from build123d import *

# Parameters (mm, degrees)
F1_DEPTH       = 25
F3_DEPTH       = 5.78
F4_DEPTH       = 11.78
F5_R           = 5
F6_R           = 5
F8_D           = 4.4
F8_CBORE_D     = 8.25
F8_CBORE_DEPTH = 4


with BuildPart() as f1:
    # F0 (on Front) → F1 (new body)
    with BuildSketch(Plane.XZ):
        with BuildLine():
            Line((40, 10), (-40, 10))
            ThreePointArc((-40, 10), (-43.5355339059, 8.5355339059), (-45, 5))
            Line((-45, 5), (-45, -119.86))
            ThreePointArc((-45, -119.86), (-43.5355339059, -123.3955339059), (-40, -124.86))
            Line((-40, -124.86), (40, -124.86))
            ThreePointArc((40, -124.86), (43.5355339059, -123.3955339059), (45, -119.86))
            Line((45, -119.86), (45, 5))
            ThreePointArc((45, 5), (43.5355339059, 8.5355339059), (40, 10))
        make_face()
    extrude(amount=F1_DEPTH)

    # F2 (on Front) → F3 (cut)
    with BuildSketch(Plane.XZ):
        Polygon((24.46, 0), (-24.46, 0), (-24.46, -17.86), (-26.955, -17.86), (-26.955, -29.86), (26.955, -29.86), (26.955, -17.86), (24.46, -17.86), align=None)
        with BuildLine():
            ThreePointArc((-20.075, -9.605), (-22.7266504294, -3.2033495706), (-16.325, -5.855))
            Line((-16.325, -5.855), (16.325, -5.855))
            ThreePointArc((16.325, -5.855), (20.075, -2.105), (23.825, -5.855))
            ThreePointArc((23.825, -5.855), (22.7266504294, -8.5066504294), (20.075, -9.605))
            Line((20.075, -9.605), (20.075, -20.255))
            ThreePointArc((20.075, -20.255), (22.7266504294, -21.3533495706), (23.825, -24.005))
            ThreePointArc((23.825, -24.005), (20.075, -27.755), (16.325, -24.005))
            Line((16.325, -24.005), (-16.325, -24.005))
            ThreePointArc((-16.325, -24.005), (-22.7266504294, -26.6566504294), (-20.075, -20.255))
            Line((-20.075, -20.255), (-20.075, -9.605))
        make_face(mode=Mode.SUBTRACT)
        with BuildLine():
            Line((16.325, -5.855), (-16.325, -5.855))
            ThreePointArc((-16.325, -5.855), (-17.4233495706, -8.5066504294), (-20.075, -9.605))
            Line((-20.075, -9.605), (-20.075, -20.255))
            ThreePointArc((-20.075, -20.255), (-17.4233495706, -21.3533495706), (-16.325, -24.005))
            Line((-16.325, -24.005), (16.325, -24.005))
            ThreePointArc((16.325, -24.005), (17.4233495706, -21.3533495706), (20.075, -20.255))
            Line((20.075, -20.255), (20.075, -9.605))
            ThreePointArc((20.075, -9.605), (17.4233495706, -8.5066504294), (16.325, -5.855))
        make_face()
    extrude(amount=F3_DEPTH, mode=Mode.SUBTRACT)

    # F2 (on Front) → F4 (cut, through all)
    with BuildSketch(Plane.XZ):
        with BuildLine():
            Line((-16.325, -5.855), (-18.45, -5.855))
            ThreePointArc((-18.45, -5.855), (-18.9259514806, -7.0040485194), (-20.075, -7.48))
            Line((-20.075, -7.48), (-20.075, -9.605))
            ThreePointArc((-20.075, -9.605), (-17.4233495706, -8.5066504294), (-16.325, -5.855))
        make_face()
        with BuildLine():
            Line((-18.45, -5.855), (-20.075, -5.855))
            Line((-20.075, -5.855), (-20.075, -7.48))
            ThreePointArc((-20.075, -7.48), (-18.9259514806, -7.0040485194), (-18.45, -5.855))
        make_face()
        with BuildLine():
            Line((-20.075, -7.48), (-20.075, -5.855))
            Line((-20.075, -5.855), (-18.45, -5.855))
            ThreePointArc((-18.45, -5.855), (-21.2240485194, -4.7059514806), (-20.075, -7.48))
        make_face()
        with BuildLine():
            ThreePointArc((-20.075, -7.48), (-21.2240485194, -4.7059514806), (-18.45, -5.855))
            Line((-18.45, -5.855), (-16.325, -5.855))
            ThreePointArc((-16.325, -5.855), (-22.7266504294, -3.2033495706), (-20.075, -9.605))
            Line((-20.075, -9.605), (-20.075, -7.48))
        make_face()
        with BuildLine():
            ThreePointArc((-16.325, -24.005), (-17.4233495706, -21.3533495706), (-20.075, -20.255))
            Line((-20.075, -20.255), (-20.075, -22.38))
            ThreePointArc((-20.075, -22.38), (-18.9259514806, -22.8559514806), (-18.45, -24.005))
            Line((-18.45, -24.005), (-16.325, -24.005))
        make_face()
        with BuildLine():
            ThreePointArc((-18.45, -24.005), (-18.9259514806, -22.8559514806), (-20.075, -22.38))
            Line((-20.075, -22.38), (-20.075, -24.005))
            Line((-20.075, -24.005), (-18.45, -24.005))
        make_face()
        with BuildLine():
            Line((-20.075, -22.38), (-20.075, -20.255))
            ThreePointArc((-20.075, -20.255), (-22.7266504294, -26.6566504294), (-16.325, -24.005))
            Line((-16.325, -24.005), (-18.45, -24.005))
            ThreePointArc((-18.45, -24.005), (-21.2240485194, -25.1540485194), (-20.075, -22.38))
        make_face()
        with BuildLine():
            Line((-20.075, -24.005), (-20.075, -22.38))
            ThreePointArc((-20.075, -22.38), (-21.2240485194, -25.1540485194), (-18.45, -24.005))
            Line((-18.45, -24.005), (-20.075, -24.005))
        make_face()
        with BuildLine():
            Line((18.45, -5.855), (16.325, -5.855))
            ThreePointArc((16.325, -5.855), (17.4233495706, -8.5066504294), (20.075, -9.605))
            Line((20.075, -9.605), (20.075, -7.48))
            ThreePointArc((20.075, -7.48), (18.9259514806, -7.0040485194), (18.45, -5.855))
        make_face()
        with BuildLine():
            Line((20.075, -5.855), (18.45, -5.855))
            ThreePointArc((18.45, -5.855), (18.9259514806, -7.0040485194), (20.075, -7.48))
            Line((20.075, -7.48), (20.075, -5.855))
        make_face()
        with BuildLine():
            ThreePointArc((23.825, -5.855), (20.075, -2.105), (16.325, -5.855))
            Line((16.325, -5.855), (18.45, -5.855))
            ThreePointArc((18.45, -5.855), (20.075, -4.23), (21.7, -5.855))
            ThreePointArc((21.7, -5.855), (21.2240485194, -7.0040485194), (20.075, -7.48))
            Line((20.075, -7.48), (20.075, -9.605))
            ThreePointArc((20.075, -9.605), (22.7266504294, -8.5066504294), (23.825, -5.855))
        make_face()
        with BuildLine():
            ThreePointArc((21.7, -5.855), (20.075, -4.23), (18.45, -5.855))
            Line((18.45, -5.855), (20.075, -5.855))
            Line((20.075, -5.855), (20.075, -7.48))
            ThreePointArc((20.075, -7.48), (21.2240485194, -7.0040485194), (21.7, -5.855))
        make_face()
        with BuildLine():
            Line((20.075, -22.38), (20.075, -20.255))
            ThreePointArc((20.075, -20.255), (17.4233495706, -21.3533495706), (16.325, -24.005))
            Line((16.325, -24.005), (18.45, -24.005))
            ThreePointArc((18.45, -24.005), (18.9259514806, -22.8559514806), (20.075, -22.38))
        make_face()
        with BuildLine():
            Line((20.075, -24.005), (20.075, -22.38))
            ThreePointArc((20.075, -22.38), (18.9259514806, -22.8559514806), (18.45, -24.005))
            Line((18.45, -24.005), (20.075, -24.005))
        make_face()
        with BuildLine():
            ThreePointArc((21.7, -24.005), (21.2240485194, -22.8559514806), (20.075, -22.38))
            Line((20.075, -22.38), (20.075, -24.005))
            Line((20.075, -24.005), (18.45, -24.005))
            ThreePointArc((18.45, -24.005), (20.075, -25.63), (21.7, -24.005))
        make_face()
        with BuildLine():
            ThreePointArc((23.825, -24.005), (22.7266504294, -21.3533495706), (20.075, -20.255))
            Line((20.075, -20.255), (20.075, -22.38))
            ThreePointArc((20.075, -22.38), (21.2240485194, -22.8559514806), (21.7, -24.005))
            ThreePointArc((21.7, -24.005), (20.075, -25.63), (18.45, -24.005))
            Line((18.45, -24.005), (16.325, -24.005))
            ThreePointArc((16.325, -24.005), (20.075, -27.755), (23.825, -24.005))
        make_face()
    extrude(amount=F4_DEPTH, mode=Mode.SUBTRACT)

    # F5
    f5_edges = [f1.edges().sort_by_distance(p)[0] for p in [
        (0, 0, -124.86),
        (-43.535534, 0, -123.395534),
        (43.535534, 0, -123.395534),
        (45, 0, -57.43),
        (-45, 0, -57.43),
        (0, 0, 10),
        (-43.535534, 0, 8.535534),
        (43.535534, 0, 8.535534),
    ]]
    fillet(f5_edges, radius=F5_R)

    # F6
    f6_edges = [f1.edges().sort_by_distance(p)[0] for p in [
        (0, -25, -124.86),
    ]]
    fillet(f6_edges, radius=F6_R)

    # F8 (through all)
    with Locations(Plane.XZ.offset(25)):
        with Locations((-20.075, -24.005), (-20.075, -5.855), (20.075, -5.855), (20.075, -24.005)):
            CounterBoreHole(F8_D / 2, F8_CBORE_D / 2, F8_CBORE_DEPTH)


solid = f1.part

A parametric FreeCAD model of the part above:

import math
import FreeCAD as App
import Part
import Sketcher

V = App.Vector


def edges_at(feature, points):
    """Names of the edges that pass closest to the given points."""
    edges = feature.Shape.Edges
    near = lambda p: min(range(len(edges)), key=lambda i: edges[i].distToShape(Part.Vertex(*p))[0])
    return sorted({f"Edge{near(p) + 1}" for p in points})


def add_polygon(sketch, points):
    """Adds a closed chain of lines whose ends are joined by coincident constraints."""
    first, n = sketch.GeometryCount, len(points)
    for a, b in zip(points, points[1:] + points[:1]):
        sketch.addGeometry(Part.LineSegment(App.Vector(*a, 0), App.Vector(*b, 0)), False)
    for i in range(n):
        sketch.addConstraint(Sketcher.Constraint("Coincident", first + i, 2, first + (i + 1) % n, 1))

doc = App.newDocument("Part")
body = doc.addObject("PartDesign::Body", "Body")

# Sketch on XZ plane
sketch1 = body.newObject("Sketcher::SketchObject", "Sketch")
sketch1.AttachmentSupport = (doc.getObject("XZ_Plane"), [""])
sketch1.MapMode = "FlatFace"
sketch1.addGeometry([
    Part.LineSegment(V(40, 10, 0), V(-40, 10, 0)),  # 0
    Part.ArcOfCircle(Part.Circle(V(-40, 5, 0), V(0, 0, 1), 5), math.radians(90), math.radians(180)),  # 1
    Part.LineSegment(V(-45, 5, 0), V(-45, -119.86, 0)),  # 2
    Part.ArcOfCircle(Part.Circle(V(-40, -119.86, 0), V(0, 0, 1), 5), math.radians(180), math.radians(270)),  # 3
    Part.LineSegment(V(-40, -124.86, 0), V(40, -124.86, 0)),  # 4
    Part.ArcOfCircle(Part.Circle(V(40, -119.86, 0), V(0, 0, 1), 5), math.radians(-90), math.radians(0)),  # 5
    Part.LineSegment(V(45, -119.86, 0), V(45, 5, 0)),  # 6
    Part.ArcOfCircle(Part.Circle(V(40, 5, 0), V(0, 0, 1), 5), math.radians(0), math.radians(90)),  # 7
], False)
sketch1.addConstraint([
    Sketcher.Constraint("Tangent", 0, 2, 1, 1),
    Sketcher.Constraint("Tangent", 1, 2, 2, 1),
    Sketcher.Constraint("Tangent", 2, 2, 3, 1),
    Sketcher.Constraint("Tangent", 3, 2, 4, 1),
    Sketcher.Constraint("Tangent", 4, 2, 5, 1),
    Sketcher.Constraint("Tangent", 5, 2, 6, 1),
    Sketcher.Constraint("Tangent", 6, 2, 7, 1),
    Sketcher.Constraint("Tangent", 7, 2, 0, 1),
    Sketcher.Constraint("Horizontal", 0),
    Sketcher.Constraint("Vertical", 2),
    Sketcher.Constraint("Horizontal", 4),
    Sketcher.Constraint("Vertical", 6),
    Sketcher.Constraint("Equal", 1, 3),
    Sketcher.Constraint("Equal", 3, 5),
    Sketcher.Constraint("Equal", 5, 7),
    Sketcher.Constraint("Radius", 1, 5.0),
    Sketcher.Constraint("DistanceX", 0, 2, 0, 1, 80.0),
    Sketcher.Constraint("DistanceX", 1, 3, -1, 1, 40.0),
    Sketcher.Constraint("DistanceY", -1, 1, 1, 3, 5.0),
    Sketcher.Constraint("DistanceY", 2, 2, 2, 1, 124.86),
])
pad1 = body.newObject("PartDesign::Pad", "Pad")
pad1.Profile = sketch1
pad1.Length = 25

# Sketch on XZ plane
sketch2 = body.newObject("Sketcher::SketchObject", "Sketch001")
sketch2.AttachmentSupport = (doc.getObject("XZ_Plane"), [""])
sketch2.MapMode = "FlatFace"
add_polygon(sketch2, [(24.46, 0), (-24.46, 0), (-24.46, -17.86), (-26.955, -17.86), (-26.955, -29.86), (26.955, -29.86), (26.955, -17.86), (24.46, -17.86)])  # lines 0-7
sketch2.addGeometry(Part.ArcOfCircle(Part.Circle(V(-20.075, -24.005, 0), V(0, 0, 1), 3.75), math.radians(90), math.radians(360)), False)  # 8
sketch2.addGeometry(Part.ArcOfCircle(Part.Circle(V(-20.075, -24.005, 0), V(0, 0, 1), 3.75), math.radians(0), math.radians(90)), False)  # 9
sketch2.addGeometry(Part.ArcOfCircle(Part.Circle(V(20.075, -24.005, 0), V(0, 0, 1), 3.75), math.radians(180), math.radians(360)), False)  # 10
sketch2.addGeometry(Part.ArcOfCircle(Part.Circle(V(20.075, -24.005, 0), V(0, 0, 1), 3.75), math.radians(90), math.radians(180)), False)  # 11
sketch2.addGeometry(Part.ArcOfCircle(Part.Circle(V(20.075, -24.005, 0), V(0, 0, 1), 3.75), math.radians(0), math.radians(90)), False)  # 12
sketch2.addGeometry(Part.ArcOfCircle(Part.Circle(V(20.075, -5.855, 0), V(0, 0, 1), 3.75), math.radians(-90), math.radians(0)), False)  # 13
sketch2.addGeometry(Part.ArcOfCircle(Part.Circle(V(20.075, -5.855, 0), V(0, 0, 1), 3.75), math.radians(180), math.radians(270)), False)  # 14
sketch2.addGeometry(Part.ArcOfCircle(Part.Circle(V(20.075, -5.855, 0), V(0, 0, 1), 3.75), math.radians(0), math.radians(180)), False)  # 15
sketch2.addGeometry(Part.ArcOfCircle(Part.Circle(V(-20.075, -5.855, 0), V(0, 0, 1), 3.75), math.radians(0), math.radians(270)), False)  # 16
sketch2.addGeometry(Part.ArcOfCircle(Part.Circle(V(-20.075, -5.855, 0), V(0, 0, 1), 3.75), math.radians(-90), math.radians(0)), False)  # 17
sketch2.addConstraint([
    Sketcher.Constraint("Tangent", 8, 1, 9, 2),
    Sketcher.Constraint("Coincident", 9, 1, 8, 2),
    Sketcher.Constraint("Tangent", 10, 1, 11, 2),
    Sketcher.Constraint("Tangent", 11, 1, 12, 2),
    Sketcher.Constraint("Tangent", 12, 1, 10, 2),
    Sketcher.Constraint("Tangent", 13, 1, 14, 2),
    Sketcher.Constraint("Tangent", 14, 1, 15, 2),
    Sketcher.Constraint("Tangent", 15, 1, 13, 2),
    Sketcher.Constraint("Tangent", 16, 1, 17, 2),
    Sketcher.Constraint("Coincident", 17, 1, 16, 2),
    Sketcher.Constraint("Horizontal", 0),
    Sketcher.Constraint("Vertical", 1),
    Sketcher.Constraint("Horizontal", 2),
    Sketcher.Constraint("Vertical", 3),
    Sketcher.Constraint("Horizontal", 4),
    Sketcher.Constraint("Vertical", 5),
    Sketcher.Constraint("Horizontal", 6),
    Sketcher.Constraint("Vertical", 7),
    Sketcher.Constraint("Equal", 9, 10),
    Sketcher.Constraint("Equal", 12, 13),
    Sketcher.Constraint("Equal", 15, 16),
    Sketcher.Constraint("Symmetric", 0, 2, 7, 2, -1, 1),
    Sketcher.Constraint("Symmetric", 8, 3, 10, 3, -2),
    Sketcher.Constraint("Symmetric", 13, 3, 16, 3, -2),
    Sketcher.Constraint("Symmetric", 2, 2, 5, 2, -2),
    Sketcher.Constraint("Horizontal", 12, 3, 9, 1),
    Sketcher.Constraint("Horizontal", 9, 1, 10, 1),
    Sketcher.Constraint("Horizontal", 10, 1, 12, 1),
    Sketcher.Constraint("Horizontal", 17, 3, 14, 1),
    Sketcher.Constraint("Horizontal", 14, 1, 15, 1),
    Sketcher.Constraint("Horizontal", 15, 1, 16, 1),
    Sketcher.Constraint("Vertical", 12, 3, 13, 3),
    Sketcher.Constraint("Vertical", 17, 3, 8, 1),
    Sketcher.Constraint("Vertical", 15, 3, 11, 1),
    Sketcher.Constraint("Vertical", 11, 1, 13, 1),
    Sketcher.Constraint("Vertical", 8, 1, 17, 1),
    Sketcher.Constraint("DistanceY", 3, 2, 3, 1, 12.0),
    Sketcher.Constraint("Radius", 8, 3.75),
    Sketcher.Constraint("DistanceX", 0, 2, 0, 1, 48.92),
    Sketcher.Constraint("DistanceX", 4, 1, 4, 2, 53.91),
    Sketcher.Constraint("DistanceY", 1, 2, 1, 1, 17.86),
    Sketcher.Constraint("DistanceY", 8, 1, 16, 1, 14.4),
    Sketcher.Constraint("DistanceX", 8, 3, 10, 3, 40.15),
    Sketcher.Constraint("DistanceY", 8, 3, -1, 1, 24.005),
])
pocket1 = body.newObject("PartDesign::Pocket", "Pocket")
pocket1.Profile = sketch2
pocket1.Length = 5.78
pocket1.Reversed = True

# Sketch on XZ plane
sketch3 = body.newObject("Sketcher::SketchObject", "Sketch002")
sketch3.AttachmentSupport = (doc.getObject("XZ_Plane"), [""])
sketch3.MapMode = "FlatFace"
sketch3.addGeometry([
    Part.ArcOfCircle(Part.Circle(V(-20.075, -5.855, 0), V(0, 0, 1), 3.75), math.radians(-90), math.radians(0)),  # 0
    Part.ArcOfCircle(Part.Circle(V(-20.075, -5.855, 0), V(0, 0, 1), 3.75), math.radians(0), math.radians(270)),  # 1
    Part.ArcOfCircle(Part.Circle(V(-20.075, -24.005, 0), V(0, 0, 1), 3.75), math.radians(0), math.radians(90)),  # 2
    Part.ArcOfCircle(Part.Circle(V(-20.075, -24.005, 0), V(0, 0, 1), 3.75), math.radians(90), math.radians(360)),  # 3
    Part.ArcOfCircle(Part.Circle(V(20.075, -5.855, 0), V(0, 0, 1), 3.75), math.radians(180), math.radians(270)),  # 4
    Part.ArcOfCircle(Part.Circle(V(20.075, -5.855, 0), V(0, 0, 1), 3.75), math.radians(-90), math.radians(0)),  # 5
    Part.ArcOfCircle(Part.Circle(V(20.075, -5.855, 0), V(0, 0, 1), 3.75), math.radians(0), math.radians(180)),  # 6
    Part.ArcOfCircle(Part.Circle(V(20.075, -24.005, 0), V(0, 0, 1), 3.75), math.radians(90), math.radians(180)),  # 7
    Part.ArcOfCircle(Part.Circle(V(20.075, -24.005, 0), V(0, 0, 1), 3.75), math.radians(180), math.radians(360)),  # 8
    Part.ArcOfCircle(Part.Circle(V(20.075, -24.005, 0), V(0, 0, 1), 3.75), math.radians(0), math.radians(90)),  # 9
], False)
sketch3.addConstraint([
    Sketcher.Constraint("Tangent", 0, 1, 1, 2),
    Sketcher.Constraint("Coincident", 1, 1, 0, 2),
    Sketcher.Constraint("Tangent", 2, 1, 3, 2),
    Sketcher.Constraint("Coincident", 3, 1, 2, 2),
    Sketcher.Constraint("Tangent", 4, 2, 5, 1),
    Sketcher.Constraint("Tangent", 5, 2, 6, 1),
    Sketcher.Constraint("Tangent", 6, 2, 4, 1),
    Sketcher.Constraint("Tangent", 7, 2, 8, 1),
    Sketcher.Constraint("Tangent", 8, 2, 9, 1),
    Sketcher.Constraint("Tangent", 9, 2, 7, 1),
    Sketcher.Constraint("Equal", 1, 2),
    Sketcher.Constraint("Equal", 3, 4),
    Sketcher.Constraint("Equal", 6, 7),
    Sketcher.Constraint("Symmetric", 0, 3, 4, 3, -2),
    Sketcher.Constraint("Symmetric", 2, 3, 7, 3, -2),
    Sketcher.Constraint("Horizontal", 6, 3, 1, 1),
    Sketcher.Constraint("Horizontal", 9, 3, 2, 1),
    Sketcher.Constraint("Horizontal", 1, 1, 5, 2),
    Sketcher.Constraint("Horizontal", 5, 2, 6, 2),
    Sketcher.Constraint("Horizontal", 2, 1, 7, 2),
    Sketcher.Constraint("Horizontal", 7, 2, 8, 2),
    Sketcher.Constraint("Vertical", 1, 3, 2, 3),
    Sketcher.Constraint("Vertical", 3, 3, 0, 1),
    Sketcher.Constraint("Vertical", 0, 1, 3, 1),
    Sketcher.Constraint("Vertical", 9, 3, 4, 2),
    Sketcher.Constraint("Vertical", 4, 2, 9, 2),
    Sketcher.Constraint("Radius", 0, 3.75),
    Sketcher.Constraint("DistanceY", 2, 3, 0, 1, 14.4),
    Sketcher.Constraint("DistanceX", 0, 3, 4, 3, 40.15),
    Sketcher.Constraint("DistanceY", 0, 3, -1, 1, 5.855),
])
pocket2 = body.newObject("PartDesign::Pocket", "Pocket001")
pocket2.Profile = sketch3
pocket2.Length = 11.78
pocket2.Reversed = True
doc.recompute()

fillet = body.newObject("PartDesign::Fillet", "Fillet")
fillet.Base = (pocket2, edges_at(pocket2, [
    (0, 0, -124.86),
    (-43.536, 0, -123.396),
    (43.536, 0, -123.396),
    (45, 0, -57.43),
    (-45, 0, -57.43),
    (0, 0, 10),
    (-43.536, 0, 8.536),
    (43.536, 0, 8.536),
]))
fillet.Radius = 5
doc.recompute()

fillet2 = body.newObject("PartDesign::Fillet", "Fillet001")
fillet2.Base = (fillet, edges_at(fillet, [(0, -25, -124.86)]))
fillet2.Radius = 5

# Sketch on XZ plane
sketch4 = body.newObject("Sketcher::SketchObject", "Sketch003")
sketch4.AttachmentSupport = (doc.getObject("XZ_Plane"), [""])
sketch4.MapMode = "FlatFace"
sketch4.AttachmentOffset = App.Placement(V(0, 0, 25), App.Rotation())
sketch4.addGeometry([
    Part.Circle(V(-20.075, -24.005, 0), V(0, 0, 1), 2.2),
    Part.Circle(V(-20.075, -5.855, 0), V(0, 0, 1), 2.2),
    Part.Circle(V(20.075, -5.855, 0), V(0, 0, 1), 2.2),
    Part.Circle(V(20.075, -24.005, 0), V(0, 0, 1), 2.2),
], False)
sketch4.addConstraint([
    Sketcher.Constraint("Equal", 0, 1),
    Sketcher.Constraint("Equal", 1, 2),
    Sketcher.Constraint("Equal", 2, 3),
    Sketcher.Constraint("Symmetric", 1, 3, 2, 3, -2),
    Sketcher.Constraint("Symmetric", 0, 3, 3, 3, -2),
    Sketcher.Constraint("Vertical", 0, 3, 1, 3),
    Sketcher.Constraint("Diameter", 0, 4.4),
    Sketcher.Constraint("DistanceY", 0, 3, 1, 3, 18.15),
    Sketcher.Constraint("DistanceX", 1, 3, 2, 3, 40.15),
    Sketcher.Constraint("DistanceY", 0, 3, -1, 1, 24.005),
])
doc.recompute()
hole = body.newObject("PartDesign::Hole", "Hole")
hole.Profile = sketch4
hole.ThreadType = "None"
hole.Diameter = 4.4
hole.DepthType = "ThroughAll"
hole.HoleCutType = "Counterbore"
hole.HoleCutDiameter = 8.25
hole.HoleCutDepth = 4

doc.recompute()
